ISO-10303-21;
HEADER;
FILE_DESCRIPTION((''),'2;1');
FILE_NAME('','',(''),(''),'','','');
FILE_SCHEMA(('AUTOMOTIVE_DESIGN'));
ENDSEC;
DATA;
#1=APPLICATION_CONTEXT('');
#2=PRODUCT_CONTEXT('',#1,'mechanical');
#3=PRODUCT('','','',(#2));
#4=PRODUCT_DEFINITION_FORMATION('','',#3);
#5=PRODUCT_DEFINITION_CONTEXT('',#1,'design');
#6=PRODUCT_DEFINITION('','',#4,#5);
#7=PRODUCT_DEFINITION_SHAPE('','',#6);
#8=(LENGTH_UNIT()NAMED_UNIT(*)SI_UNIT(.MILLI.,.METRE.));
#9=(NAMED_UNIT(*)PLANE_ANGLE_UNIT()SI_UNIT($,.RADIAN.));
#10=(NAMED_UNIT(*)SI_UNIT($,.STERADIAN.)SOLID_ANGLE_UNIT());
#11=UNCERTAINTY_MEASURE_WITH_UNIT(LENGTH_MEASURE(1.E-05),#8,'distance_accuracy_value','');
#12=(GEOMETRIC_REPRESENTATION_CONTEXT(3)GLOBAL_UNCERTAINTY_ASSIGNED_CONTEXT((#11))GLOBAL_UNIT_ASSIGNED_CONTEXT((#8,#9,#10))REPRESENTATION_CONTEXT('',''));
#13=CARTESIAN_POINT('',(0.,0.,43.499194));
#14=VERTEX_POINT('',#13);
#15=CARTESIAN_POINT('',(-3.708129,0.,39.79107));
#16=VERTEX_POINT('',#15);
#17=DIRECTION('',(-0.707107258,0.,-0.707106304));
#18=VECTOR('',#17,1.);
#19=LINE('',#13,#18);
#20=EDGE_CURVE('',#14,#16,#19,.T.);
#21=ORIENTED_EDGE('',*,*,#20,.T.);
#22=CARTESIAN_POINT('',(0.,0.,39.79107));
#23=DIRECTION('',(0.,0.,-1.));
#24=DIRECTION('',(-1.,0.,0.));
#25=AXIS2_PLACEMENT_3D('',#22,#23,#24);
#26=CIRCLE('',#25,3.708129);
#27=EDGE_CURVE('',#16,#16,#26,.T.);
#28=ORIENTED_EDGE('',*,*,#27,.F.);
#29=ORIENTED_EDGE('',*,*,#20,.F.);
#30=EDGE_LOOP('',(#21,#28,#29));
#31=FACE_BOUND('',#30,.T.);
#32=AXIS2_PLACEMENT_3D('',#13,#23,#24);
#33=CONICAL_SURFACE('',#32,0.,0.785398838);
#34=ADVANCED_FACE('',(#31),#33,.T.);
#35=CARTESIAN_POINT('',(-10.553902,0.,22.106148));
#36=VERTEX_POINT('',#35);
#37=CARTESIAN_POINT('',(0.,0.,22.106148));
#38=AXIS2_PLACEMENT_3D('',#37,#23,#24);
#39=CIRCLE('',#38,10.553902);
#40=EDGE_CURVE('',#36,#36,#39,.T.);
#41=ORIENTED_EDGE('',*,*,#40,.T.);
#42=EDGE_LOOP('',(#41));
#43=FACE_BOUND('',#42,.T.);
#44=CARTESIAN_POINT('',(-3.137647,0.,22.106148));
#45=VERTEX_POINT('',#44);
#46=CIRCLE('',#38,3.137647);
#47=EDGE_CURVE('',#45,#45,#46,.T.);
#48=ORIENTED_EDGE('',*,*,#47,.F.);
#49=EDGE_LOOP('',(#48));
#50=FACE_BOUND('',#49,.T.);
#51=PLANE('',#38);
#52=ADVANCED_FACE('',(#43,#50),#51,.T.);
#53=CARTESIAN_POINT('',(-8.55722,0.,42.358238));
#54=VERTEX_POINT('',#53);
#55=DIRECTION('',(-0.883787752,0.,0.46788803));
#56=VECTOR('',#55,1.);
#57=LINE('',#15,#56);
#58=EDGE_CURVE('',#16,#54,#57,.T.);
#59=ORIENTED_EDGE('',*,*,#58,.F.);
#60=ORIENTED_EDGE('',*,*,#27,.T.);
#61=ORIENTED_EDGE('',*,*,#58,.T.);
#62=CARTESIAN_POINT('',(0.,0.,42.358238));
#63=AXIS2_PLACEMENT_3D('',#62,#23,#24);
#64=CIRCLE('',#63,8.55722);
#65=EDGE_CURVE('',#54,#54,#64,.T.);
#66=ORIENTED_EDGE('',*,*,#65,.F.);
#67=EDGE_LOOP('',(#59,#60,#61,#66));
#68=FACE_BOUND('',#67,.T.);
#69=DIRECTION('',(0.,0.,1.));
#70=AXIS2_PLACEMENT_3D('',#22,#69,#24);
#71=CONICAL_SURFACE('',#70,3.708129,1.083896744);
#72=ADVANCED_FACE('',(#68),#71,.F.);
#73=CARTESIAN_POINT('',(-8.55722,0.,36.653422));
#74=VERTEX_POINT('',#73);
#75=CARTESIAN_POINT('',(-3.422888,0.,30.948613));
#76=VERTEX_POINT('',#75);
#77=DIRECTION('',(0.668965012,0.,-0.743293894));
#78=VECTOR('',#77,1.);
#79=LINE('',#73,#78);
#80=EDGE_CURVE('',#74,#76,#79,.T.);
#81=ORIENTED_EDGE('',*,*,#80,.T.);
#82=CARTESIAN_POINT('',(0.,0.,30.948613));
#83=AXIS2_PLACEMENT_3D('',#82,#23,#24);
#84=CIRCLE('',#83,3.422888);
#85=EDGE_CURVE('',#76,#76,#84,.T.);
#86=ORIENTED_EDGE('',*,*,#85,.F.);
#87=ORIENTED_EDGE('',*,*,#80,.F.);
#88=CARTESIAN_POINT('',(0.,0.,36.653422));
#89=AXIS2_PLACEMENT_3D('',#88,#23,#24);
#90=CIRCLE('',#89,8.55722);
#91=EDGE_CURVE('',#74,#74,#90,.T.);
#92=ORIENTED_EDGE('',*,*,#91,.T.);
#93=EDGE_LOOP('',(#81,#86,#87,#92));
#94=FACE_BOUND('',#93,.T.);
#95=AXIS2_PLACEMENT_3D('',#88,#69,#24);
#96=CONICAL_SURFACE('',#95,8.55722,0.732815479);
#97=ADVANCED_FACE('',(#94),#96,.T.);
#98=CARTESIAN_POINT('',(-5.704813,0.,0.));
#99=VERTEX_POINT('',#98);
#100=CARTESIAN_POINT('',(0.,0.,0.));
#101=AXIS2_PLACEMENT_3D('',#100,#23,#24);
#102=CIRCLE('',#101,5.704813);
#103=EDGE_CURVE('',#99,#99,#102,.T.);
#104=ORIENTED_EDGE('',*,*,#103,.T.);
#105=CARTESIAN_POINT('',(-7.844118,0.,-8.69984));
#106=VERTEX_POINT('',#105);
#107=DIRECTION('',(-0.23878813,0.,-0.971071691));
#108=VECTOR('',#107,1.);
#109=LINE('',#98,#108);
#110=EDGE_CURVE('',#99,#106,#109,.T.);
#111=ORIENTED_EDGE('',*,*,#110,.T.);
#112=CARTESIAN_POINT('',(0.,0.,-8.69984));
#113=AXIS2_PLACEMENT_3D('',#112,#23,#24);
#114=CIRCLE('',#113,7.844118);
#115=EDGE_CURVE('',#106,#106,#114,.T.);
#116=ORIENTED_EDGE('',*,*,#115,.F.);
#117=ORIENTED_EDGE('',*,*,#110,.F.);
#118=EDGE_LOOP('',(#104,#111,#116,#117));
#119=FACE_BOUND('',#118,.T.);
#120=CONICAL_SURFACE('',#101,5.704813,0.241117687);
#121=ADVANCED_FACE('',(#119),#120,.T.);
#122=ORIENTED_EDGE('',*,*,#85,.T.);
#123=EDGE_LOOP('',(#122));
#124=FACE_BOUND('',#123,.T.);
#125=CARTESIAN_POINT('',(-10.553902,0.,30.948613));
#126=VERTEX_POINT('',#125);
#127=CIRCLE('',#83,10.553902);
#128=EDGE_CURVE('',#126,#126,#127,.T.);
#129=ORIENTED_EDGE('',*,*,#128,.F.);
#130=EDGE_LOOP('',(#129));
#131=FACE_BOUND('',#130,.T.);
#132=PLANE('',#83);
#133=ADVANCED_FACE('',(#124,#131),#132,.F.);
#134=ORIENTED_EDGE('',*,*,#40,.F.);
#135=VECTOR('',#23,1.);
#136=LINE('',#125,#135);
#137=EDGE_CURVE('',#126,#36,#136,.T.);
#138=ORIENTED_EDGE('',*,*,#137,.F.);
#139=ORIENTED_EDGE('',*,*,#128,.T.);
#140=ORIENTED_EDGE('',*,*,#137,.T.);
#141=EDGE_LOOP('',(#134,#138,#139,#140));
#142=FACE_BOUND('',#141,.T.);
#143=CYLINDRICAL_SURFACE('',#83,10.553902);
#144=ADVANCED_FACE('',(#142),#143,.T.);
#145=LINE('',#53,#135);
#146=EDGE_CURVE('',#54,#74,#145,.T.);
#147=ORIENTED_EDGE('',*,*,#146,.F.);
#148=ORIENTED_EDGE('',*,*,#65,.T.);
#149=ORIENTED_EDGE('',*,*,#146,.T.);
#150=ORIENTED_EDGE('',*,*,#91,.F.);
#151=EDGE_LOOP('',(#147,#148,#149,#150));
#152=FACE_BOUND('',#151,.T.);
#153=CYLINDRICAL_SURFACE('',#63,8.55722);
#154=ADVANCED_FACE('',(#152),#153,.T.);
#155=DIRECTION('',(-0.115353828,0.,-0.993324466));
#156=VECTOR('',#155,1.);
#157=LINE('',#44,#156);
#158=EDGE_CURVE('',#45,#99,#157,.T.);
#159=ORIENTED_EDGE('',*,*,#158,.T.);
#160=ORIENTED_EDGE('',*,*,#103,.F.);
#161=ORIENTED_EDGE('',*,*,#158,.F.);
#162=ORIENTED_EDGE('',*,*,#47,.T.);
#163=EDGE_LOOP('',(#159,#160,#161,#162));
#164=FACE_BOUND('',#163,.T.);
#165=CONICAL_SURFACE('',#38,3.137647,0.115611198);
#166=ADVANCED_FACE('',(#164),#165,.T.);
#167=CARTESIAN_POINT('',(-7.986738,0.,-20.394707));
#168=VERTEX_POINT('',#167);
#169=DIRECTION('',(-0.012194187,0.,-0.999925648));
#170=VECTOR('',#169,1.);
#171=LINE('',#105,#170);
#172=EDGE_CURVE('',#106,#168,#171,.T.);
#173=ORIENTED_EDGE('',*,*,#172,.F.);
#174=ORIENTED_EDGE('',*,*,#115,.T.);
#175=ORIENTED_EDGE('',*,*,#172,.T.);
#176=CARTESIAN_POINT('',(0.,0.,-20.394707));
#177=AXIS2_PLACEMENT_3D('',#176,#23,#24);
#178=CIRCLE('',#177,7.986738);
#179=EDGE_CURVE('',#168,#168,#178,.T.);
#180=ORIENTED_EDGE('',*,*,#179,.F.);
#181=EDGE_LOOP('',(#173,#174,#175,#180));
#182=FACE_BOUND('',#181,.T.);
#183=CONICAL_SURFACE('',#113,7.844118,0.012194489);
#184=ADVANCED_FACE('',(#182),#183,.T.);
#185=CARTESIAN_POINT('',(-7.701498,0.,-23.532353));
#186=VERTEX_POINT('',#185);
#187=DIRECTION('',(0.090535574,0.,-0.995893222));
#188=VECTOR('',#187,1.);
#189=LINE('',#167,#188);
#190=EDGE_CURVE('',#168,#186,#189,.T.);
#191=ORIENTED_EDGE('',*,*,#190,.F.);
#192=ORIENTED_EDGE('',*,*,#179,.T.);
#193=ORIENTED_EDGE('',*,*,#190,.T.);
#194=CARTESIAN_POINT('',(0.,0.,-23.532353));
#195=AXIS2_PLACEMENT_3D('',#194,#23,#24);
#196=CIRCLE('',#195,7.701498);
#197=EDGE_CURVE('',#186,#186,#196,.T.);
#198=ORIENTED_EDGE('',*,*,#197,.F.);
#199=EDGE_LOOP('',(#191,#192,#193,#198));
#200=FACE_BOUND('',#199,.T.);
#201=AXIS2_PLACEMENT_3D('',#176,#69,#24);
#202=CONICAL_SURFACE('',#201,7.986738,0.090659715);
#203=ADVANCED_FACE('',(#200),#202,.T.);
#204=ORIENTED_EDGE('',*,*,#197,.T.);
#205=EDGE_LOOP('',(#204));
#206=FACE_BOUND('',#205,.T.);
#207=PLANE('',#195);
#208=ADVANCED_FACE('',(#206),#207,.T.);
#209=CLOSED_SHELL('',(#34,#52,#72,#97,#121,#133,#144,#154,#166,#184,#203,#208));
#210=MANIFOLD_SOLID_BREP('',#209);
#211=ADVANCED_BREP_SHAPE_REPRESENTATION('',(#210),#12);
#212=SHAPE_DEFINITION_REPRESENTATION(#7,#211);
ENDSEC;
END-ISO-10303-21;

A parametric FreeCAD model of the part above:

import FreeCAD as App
import Part
import Sketcher
from FreeCAD import Vector


def add_polygon(sketch, points):
    """Adds a closed chain of lines whose ends are joined by coincident constraints."""
    first, n = sketch.GeometryCount, len(points)
    for a, b in zip(points, points[1:] + points[:1]):
        sketch.addGeometry(Part.LineSegment(App.Vector(*a, 0), App.Vector(*b, 0)), False)
    for i in range(n):
        sketch.addConstraint(Sketcher.Constraint("Coincident", first + i, 2, first + (i + 1) % n, 1))

doc = App.newDocument("Part")
body = doc.addObject("PartDesign::Body", "Body")

sketch1 = body.newObject("Sketcher::SketchObject", "Sketch")
sketch1.AttachmentSupport = (doc.getObject("XZ_Plane"), [""])
sketch1.MapMode = "FlatFace"
add_polygon(sketch1, [(0, -23.5), (0, 43.5), (-3.7, 39.8), (-8.6, 42.4), (-8.6, 36.7), (-3.4, 30.9), (-10.6, 30.9), (-10.6, 22.1), (-3.1, 22.1), (-5.7, 0), (-7.8, -8.7), (-8, -20.4), (-7.7, -23.5)])
sketch1.addConstraint([
    Sketcher.Constraint("Vertical", 0),
    Sketcher.Constraint("Vertical", 3),
    Sketcher.Constraint("Horizontal", 5),
    Sketcher.Constraint("Vertical", 6),
    Sketcher.Constraint("Horizontal", 7),
    Sketcher.Constraint("Horizontal", 12),
    Sketcher.Constraint("PointOnObject", 0, 2, -2),
    Sketcher.Constraint("PointOnObject", 8, 2, -1),
    Sketcher.Constraint("DistanceY", 11, 2, 6, 2, 45.638501),
    Sketcher.Constraint("Distance", 4, 7.675038),
    Sketcher.Constraint("Distance", 8, 22.25471),
    Sketcher.Constraint("Distance", 9, 8.959009),
    Sketcher.Constraint("DistanceX", 5, 2, 5, 1, 7.131014),
    Sketcher.Constraint("DistanceX", 7, 1, 7, 2, 7.416255),
    Sketcher.Constraint("DistanceX", 12, 1, 12, 2, 7.701498),
    Sketcher.Constraint("DistanceY", 0, 1, 0, 2, 67.031547),
    Sketcher.Constraint("DistanceY", 3, 2, 3, 1, 5.704816),
    Sketcher.Constraint("DistanceY", 6, 2, 6, 1, 8.842465),
    Sketcher.Constraint("DistanceX", 1, 2, -1, 1, 3.708129),
    Sketcher.Constraint("DistanceY", -1, 1, 1, 2, 39.79107),
    Sketcher.Constraint("DistanceX", 2, 2, -1, 1, 8.55722),
    Sketcher.Constraint("DistanceY", -1, 1, 6, 2, 22.106148),
    Sketcher.Constraint("DistanceY", 9, 2, -1, 1, 8.69984),
    Sketcher.Constraint("DistanceY", 1, 2, 2, 2, 2.567168),
    Sketcher.Constraint("DistanceX", 10, 2, 9, 2, 0.14262),
    Sketcher.Constraint("DistanceY", 10, 2, 5, 2, 51.34332),
])
revolution = body.newObject("PartDesign::Revolution", "Revolution")
revolution.Profile = sketch1
revolution.ReferenceAxis = (sketch1, ["V_Axis"])
revolution.Angle = 360

doc.recompute()
